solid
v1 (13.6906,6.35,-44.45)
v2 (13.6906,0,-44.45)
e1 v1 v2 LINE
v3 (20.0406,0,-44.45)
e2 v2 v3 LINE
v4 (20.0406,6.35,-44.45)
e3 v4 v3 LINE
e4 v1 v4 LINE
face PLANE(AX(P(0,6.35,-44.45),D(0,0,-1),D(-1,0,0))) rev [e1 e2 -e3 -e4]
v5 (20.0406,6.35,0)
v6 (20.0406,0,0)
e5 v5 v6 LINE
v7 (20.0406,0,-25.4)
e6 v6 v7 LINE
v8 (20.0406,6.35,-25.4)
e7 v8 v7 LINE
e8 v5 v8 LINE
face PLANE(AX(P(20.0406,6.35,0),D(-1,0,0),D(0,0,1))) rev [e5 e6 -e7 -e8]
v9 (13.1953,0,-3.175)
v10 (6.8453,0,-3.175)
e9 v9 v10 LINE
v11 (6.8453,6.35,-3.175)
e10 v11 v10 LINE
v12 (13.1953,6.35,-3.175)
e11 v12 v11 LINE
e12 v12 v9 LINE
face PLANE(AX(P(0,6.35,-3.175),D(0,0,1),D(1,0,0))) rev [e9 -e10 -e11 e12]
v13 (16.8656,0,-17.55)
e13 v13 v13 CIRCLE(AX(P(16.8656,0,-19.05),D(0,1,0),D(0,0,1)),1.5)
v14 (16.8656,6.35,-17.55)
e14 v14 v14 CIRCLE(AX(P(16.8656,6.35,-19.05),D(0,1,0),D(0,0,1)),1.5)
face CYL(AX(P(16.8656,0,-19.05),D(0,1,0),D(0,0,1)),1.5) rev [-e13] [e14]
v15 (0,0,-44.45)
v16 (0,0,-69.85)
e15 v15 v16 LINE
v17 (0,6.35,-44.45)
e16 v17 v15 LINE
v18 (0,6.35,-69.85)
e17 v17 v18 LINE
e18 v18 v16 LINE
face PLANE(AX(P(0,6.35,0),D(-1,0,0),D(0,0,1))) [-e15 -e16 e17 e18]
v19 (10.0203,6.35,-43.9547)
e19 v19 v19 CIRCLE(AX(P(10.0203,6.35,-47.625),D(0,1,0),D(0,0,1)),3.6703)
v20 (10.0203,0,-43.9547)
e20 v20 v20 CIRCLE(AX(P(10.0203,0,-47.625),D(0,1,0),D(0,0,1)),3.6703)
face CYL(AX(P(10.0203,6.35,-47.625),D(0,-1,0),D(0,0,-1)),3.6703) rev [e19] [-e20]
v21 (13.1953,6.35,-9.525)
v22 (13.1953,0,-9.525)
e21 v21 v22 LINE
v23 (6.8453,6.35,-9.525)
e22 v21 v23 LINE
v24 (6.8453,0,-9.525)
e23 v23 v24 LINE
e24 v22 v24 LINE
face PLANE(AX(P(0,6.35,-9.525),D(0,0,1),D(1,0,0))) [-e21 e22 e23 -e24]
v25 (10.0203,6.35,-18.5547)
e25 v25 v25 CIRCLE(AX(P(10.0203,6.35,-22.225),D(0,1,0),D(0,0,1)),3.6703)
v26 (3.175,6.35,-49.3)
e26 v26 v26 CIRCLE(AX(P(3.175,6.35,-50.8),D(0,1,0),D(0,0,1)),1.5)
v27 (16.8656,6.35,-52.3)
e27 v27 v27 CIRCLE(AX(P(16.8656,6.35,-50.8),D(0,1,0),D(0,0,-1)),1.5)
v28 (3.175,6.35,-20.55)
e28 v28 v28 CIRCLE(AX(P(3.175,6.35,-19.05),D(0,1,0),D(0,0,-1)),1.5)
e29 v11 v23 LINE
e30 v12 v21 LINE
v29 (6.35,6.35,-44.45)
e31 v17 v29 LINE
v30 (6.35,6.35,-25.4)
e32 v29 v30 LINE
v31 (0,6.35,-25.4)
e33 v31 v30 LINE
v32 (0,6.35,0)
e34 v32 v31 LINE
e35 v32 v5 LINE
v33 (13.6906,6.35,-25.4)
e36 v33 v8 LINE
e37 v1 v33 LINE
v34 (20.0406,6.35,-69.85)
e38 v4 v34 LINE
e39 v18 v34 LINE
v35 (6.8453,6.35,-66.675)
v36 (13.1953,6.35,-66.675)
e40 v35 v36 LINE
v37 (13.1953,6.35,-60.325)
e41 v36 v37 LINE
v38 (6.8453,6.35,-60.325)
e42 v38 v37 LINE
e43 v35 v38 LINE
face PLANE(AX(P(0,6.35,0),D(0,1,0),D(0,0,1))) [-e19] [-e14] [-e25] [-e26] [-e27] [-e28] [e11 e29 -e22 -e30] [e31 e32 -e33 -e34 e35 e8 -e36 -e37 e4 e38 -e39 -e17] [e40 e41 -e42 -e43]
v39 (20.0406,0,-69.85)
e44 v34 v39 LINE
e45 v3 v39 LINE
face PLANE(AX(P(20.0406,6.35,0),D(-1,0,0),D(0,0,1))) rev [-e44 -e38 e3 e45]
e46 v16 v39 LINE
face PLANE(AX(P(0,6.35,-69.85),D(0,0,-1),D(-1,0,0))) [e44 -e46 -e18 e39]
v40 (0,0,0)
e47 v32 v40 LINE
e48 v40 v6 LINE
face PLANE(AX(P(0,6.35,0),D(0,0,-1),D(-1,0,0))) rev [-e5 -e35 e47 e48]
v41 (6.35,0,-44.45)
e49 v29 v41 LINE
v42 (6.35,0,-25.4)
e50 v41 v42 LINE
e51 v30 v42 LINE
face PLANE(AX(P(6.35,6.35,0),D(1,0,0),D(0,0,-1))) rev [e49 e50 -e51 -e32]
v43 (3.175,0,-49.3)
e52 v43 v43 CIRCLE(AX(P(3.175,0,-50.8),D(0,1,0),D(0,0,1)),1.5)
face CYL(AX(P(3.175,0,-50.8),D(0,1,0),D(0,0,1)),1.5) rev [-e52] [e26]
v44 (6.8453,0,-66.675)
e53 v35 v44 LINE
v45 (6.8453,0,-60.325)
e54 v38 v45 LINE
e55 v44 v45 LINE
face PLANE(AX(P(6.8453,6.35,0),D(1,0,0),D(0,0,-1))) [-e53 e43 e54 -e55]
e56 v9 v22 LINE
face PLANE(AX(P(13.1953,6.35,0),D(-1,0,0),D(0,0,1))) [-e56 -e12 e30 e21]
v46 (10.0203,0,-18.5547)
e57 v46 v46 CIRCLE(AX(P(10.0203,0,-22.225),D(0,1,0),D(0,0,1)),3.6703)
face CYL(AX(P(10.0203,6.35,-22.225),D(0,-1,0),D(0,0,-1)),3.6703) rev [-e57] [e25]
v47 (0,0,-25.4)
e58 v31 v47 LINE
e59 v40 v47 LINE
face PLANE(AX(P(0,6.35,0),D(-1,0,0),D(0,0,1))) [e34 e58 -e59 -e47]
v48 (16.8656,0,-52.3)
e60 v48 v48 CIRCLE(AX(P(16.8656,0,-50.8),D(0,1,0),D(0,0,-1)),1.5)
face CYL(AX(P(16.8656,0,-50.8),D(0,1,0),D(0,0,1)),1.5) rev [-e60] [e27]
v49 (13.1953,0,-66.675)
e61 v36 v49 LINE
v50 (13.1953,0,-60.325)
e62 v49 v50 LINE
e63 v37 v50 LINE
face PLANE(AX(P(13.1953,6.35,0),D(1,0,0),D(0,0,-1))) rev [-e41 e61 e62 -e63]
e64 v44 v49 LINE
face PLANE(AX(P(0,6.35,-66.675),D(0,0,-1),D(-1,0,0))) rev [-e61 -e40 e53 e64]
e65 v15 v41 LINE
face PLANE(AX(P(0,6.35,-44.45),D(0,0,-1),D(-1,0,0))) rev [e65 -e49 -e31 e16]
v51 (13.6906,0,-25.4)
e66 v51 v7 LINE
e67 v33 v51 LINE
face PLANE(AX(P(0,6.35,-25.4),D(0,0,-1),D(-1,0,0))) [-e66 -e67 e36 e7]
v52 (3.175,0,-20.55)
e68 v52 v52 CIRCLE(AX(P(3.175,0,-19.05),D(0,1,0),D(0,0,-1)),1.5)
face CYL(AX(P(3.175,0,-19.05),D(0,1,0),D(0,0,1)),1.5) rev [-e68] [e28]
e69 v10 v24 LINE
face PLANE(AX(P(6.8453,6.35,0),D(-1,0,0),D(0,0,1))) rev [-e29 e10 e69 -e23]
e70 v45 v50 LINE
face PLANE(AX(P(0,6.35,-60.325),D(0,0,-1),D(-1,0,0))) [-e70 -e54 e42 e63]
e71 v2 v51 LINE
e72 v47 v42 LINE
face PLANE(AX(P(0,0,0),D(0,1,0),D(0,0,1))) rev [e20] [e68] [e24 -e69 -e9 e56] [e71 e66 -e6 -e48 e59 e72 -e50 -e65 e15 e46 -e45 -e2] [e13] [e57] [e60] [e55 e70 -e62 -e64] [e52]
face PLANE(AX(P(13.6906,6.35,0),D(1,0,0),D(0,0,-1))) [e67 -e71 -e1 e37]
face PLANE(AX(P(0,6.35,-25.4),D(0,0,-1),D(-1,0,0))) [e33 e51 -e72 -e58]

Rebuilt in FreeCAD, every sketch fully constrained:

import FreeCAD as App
import Part
import Sketcher
from FreeCAD import Vector
Q = App.Units.Quantity


def add_polygon(sketch, points):
    """Adds a closed chain of lines whose ends are joined by coincident constraints."""
    first, n = sketch.GeometryCount, len(points)
    for a, b in zip(points, points[1:] + points[:1]):
        sketch.addGeometry(Part.LineSegment(App.Vector(*a, 0), App.Vector(*b, 0)), False)
    for i in range(n):
        sketch.addConstraint(Sketcher.Constraint("Coincident", first + i, 2, first + (i + 1) % n, 1))

doc = App.newDocument("Part")
body = doc.addObject("PartDesign::Body", "Body")

sketch1 = body.newObject("Sketcher::SketchObject", "Sketch")
sketch1.AttachmentSupport = (doc.getObject("XZ_Plane"), [""])
sketch1.MapMode = "FlatFace"
add_polygon(sketch1, [(0, -25.4), (0, 0), (20.0406, 0), (20.0406, -25.4), (13.6906, -25.4), (13.6906, -44.45), (20.0406, -44.45), (20.0406, -69.85), (0, -69.85), (0, -44.45), (6.35, -44.45), (6.35, -25.4)])
add_polygon(sketch1, [(13.1953, -3.175), (6.8453, -3.175), (6.8453, -9.525), (13.1953, -9.525)])
sketch1.addGeometry(Part.Circle(Vector(10.0203, -22.225, 0), Vector(0, 0, 1), 3.6703), False)
sketch1.addGeometry(Part.Circle(Vector(10.0203, -47.625, 0), Vector(0, 0, 1), 3.6703), False)
add_polygon(sketch1, [(13.1953, -60.325), (6.8453, -60.325), (6.8453, -66.675), (13.1953, -66.675)])
sketch1.addConstraint(Sketcher.Constraint("Vertical", 0))
sketch1.addConstraint(Sketcher.Constraint("Horizontal", 1))
sketch1.addConstraint(Sketcher.Constraint("Vertical", 2))
sketch1.addConstraint(Sketcher.Constraint("Horizontal", 3))
sketch1.addConstraint(Sketcher.Constraint("Vertical", 4))
sketch1.addConstraint(Sketcher.Constraint("Horizontal", 5))
sketch1.addConstraint(Sketcher.Constraint("Vertical", 6))
sketch1.addConstraint(Sketcher.Constraint("Horizontal", 7))
sketch1.addConstraint(Sketcher.Constraint("Vertical", 8))
sketch1.addConstraint(Sketcher.Constraint("Horizontal", 9))
sketch1.addConstraint(Sketcher.Constraint("Vertical", 10))
sketch1.addConstraint(Sketcher.Constraint("Horizontal", 11))
sketch1.addConstraint(Sketcher.Constraint("Horizontal", 12))
sketch1.addConstraint(Sketcher.Constraint("Vertical", 13))
sketch1.addConstraint(Sketcher.Constraint("Horizontal", 14))
sketch1.addConstraint(Sketcher.Constraint("Vertical", 15))
sketch1.addConstraint(Sketcher.Constraint("Horizontal", 18))
sketch1.addConstraint(Sketcher.Constraint("Vertical", 19))
sketch1.addConstraint(Sketcher.Constraint("Horizontal", 20))
sketch1.addConstraint(Sketcher.Constraint("Vertical", 21))
sketch1.addConstraint(Sketcher.Constraint("Coincident", 0, 2, -1, 1))
sketch1.addConstraint(Sketcher.Constraint("Equal", 16, 17))
sketch1.addConstraint(Sketcher.Constraint("PointOnObject", 7, 2, -2))
sketch1.addConstraint(Sketcher.Constraint("Horizontal", 5, 2, 8, 2))
sketch1.addConstraint(Sketcher.Constraint("Horizontal", 3, 2, 10, 2))
sketch1.addConstraint(Sketcher.Constraint("Vertical", 16, 3, 17, 3))
sketch1.addConstraint(Sketcher.Constraint("Vertical", 2, 2, 5, 2))
sketch1.addConstraint(Sketcher.Constraint("Vertical", 13, 2, 18, 2))
sketch1.addConstraint(Sketcher.Constraint("Vertical", 15, 2, 20, 2))
sketch1.addConstraint(Sketcher.Constraint("Equal", 5, 9))
sketch1.addConstraint(Sketcher.Constraint("Equal", 11, 12))
sketch1.addConstraint(Sketcher.Constraint("Equal", 2, 6))
sketch1.addConstraint(Sketcher.Constraint("Equal", 20, 13))
sketch1.addConstraint(Sketcher.Constraint("Equal", 15, 19))
sketch1.addConstraint(Sketcher.Constraint("DistanceY", 0, 1, 0, 2, Q("1 in")))
sketch1.addConstraint(Sketcher.Constraint("Diameter", 16, Q("0.289 in")))
sketch1.addConstraint(Sketcher.Constraint("DistanceY", 17, 3, 16, 3, Q("1 in")))
sketch1.addConstraint(Sketcher.Constraint("DistanceX", 3, 2, 3, 1, Q("0.25 in")))
sketch1.addConstraint(Sketcher.Constraint("DistanceY", 4, 2, 4, 1, Q("0.75 in")))
sketch1.addConstraint(Sketcher.Constraint("DistanceY", 16, 3, 13, 2, Q("0.5 in")))
sketch1.addConstraint(Sketcher.Constraint("DistanceY", 18, 2, 17, 3, Q("0.5 in")))
sketch1.addConstraint(Sketcher.Constraint("DistanceX", 1, 1, 1, 2, Q("0.789 in")))
sketch1.addConstraint(Sketcher.Constraint("DistanceY", 16, 3, -1, 1, Q("0.875 in")))
sketch1.addConstraint(Sketcher.Constraint("DistanceX", 12, 2, 16, 3, Q("0.125 in")))
sketch1.addConstraint(Sketcher.Constraint("DistanceX", -1, 1, 16, 3, Q("0.3945 in")))
pad1 = body.newObject("PartDesign::Pad", "Pad")
pad1.Profile = sketch1
pad1.Length = Q("0.25 in")
pad1.Reversed = True

sketch2 = body.newObject("Sketcher::SketchObject", "Sketch001")
sketch2.AttachmentSupport = (doc.getObject("XZ_Plane"), [""])
sketch2.MapMode = "FlatFace"
sketch2.AttachmentOffset = App.Placement(Vector(0, 0, -0.25 * 25.4), App.Rotation())
sketch2.addGeometry(Part.Circle(Vector(3.175, -50.8, 0), Vector(0, 0, 1), 1.5), False)
sketch2.addGeometry(Part.Circle(Vector(3.175, -19.05, 0), Vector(0, 0, 1), 1.5), False)
sketch2.addGeometry(Part.Circle(Vector(16.8656, -19.05, 0), Vector(0, 0, 1), 1.5), False)
sketch2.addGeometry(Part.Circle(Vector(16.8656, -50.8, 0), Vector(0, 0, 1), 1.5), False)
sketch2.addConstraint(Sketcher.Constraint("Equal", 0, 1))
sketch2.addConstraint(Sketcher.Constraint("Equal", 1, 2))
sketch2.addConstraint(Sketcher.Constraint("Equal", 2, 3))
sketch2.addConstraint(Sketcher.Constraint("Horizontal", 1, 3, 2, 3))
sketch2.addConstraint(Sketcher.Constraint("Horizontal", 0, 3, 3, 3))
sketch2.addConstraint(Sketcher.Constraint("Vertical", 0, 3, 1, 3))
sketch2.addConstraint(Sketcher.Constraint("Vertical", 2, 3, 3, 3))
sketch2.addConstraint(Sketcher.Constraint("DistanceY", 0, 3, -1, 1, Q("2 in")))
sketch2.addConstraint(Sketcher.Constraint("Diameter", 0, Q("3 mm")))
sketch2.addConstraint(Sketcher.Constraint("DistanceY", 1, 3, -1, 1, Q("0.75 in")))
sketch2.addConstraint(Sketcher.Constraint("DistanceX", -1, 1, 0, 3, Q("0.125 in")))
sketch2.addConstraint(Sketcher.Constraint("DistanceX", -1, 1, 2, 3, Q("0.664 in")))
pocket1 = body.newObject("PartDesign::Pocket", "Pocket")
pocket1.Profile = sketch2
pocket1.Type = "ThroughAll"
pocket1.Reversed = True

doc.recompute()
